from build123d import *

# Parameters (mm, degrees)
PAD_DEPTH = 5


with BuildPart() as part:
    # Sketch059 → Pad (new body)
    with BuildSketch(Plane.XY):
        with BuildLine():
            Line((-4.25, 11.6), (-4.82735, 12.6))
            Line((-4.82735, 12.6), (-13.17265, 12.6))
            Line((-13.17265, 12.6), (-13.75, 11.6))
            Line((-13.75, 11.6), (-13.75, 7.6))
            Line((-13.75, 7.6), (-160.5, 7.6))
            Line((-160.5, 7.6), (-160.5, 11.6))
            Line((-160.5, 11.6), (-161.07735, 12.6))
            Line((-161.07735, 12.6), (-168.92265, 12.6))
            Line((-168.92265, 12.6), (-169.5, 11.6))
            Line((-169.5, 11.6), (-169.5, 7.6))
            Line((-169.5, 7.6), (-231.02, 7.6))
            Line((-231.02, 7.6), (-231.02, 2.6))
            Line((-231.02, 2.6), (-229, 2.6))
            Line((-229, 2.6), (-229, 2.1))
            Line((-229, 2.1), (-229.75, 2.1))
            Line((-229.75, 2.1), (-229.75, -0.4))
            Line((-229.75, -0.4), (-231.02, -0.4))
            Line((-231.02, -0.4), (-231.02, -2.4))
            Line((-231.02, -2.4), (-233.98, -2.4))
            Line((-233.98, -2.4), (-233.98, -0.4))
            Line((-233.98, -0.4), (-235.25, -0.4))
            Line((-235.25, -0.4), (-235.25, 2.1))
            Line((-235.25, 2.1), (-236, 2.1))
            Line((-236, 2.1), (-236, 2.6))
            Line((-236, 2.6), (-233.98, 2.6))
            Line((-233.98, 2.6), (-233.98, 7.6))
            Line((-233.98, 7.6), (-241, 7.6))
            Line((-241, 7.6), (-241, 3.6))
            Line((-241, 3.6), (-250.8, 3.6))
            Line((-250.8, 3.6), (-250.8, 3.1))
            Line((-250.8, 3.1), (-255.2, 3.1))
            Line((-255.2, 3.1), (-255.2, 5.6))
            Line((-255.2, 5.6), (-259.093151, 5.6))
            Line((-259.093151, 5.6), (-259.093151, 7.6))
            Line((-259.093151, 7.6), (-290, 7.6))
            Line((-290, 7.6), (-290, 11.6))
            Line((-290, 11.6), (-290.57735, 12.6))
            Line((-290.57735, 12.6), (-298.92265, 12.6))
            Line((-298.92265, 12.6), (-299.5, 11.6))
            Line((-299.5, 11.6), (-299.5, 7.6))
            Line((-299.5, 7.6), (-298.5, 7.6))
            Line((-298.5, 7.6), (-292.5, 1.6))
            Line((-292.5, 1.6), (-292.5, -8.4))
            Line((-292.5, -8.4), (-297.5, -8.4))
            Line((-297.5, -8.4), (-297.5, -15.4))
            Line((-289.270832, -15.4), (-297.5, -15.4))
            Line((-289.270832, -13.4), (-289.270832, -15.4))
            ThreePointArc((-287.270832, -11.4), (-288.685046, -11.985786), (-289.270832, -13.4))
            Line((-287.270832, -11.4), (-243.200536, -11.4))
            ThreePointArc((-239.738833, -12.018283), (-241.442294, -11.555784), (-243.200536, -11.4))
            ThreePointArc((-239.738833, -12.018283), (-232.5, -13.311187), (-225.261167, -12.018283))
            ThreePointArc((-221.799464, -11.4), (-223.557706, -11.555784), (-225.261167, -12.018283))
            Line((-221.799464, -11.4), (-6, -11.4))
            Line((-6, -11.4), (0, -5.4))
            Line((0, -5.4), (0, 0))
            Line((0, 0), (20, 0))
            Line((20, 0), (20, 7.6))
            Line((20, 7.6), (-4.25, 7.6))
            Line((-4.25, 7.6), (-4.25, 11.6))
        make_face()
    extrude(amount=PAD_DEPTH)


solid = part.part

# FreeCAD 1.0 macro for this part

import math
import FreeCAD as App
import Part
import Sketcher
from FreeCAD import Vector
Q = App.Units.Quantity

doc = App.newDocument("Part")
body = doc.addObject("PartDesign::Body", "Body")

# Sketch on XY plane
sketch1 = body.newObject("Sketcher::SketchObject", "Sketch")
sketch1.AttachmentSupport = (doc.getObject("XY_Plane"), [""])
sketch1.MapMode = "FlatFace"
sketch1.addGeometry([
    Part.LineSegment(Vector(-4.2, 11.6, 0), Vector(-4.8, 12.6, 0)),  # 0
    Part.LineSegment(Vector(-4.8, 12.6, 0), Vector(-13.2, 12.6, 0)),  # 1
    Part.LineSegment(Vector(-13.2, 12.6, 0), Vector(-13.8, 11.6, 0)),  # 2
    Part.LineSegment(Vector(-13.8, 11.6, 0), Vector(-13.8, 7.6, 0)),  # 3
    Part.LineSegment(Vector(-13.8, 7.6, 0), Vector(-160.5, 7.6, 0)),  # 4
    Part.LineSegment(Vector(-160.5, 7.6, 0), Vector(-160.5, 11.6, 0)),  # 5
    Part.LineSegment(Vector(-160.5, 11.6, 0), Vector(-161.1, 12.6, 0)),  # 6
    Part.LineSegment(Vector(-161.1, 12.6, 0), Vector(-168.9, 12.6, 0)),  # 7
    Part.LineSegment(Vector(-168.9, 12.6, 0), Vector(-169.5, 11.6, 0)),  # 8
    Part.LineSegment(Vector(-169.5, 11.6, 0), Vector(-169.5, 7.6, 0)),  # 9
    Part.LineSegment(Vector(-169.5, 7.6, 0), Vector(-231, 7.6, 0)),  # 10
    Part.LineSegment(Vector(-231, 7.6, 0), Vector(-231, 2.6, 0)),  # 11
    Part.LineSegment(Vector(-231, 2.6, 0), Vector(-229, 2.6, 0)),  # 12
    Part.LineSegment(Vector(-229, 2.6, 0), Vector(-229, 2.1, 0)),  # 13
    Part.LineSegment(Vector(-229, 2.1, 0), Vector(-229.8, 2.1, 0)),  # 14
    Part.LineSegment(Vector(-229.8, 2.1, 0), Vector(-229.8, -0.4, 0)),  # 15
    Part.LineSegment(Vector(-229.8, -0.4, 0), Vector(-231, -0.4, 0)),  # 16
    Part.LineSegment(Vector(-231, -0.4, 0), Vector(-231, -2.4, 0)),  # 17
    Part.LineSegment(Vector(-231, -2.4, 0), Vector(-234, -2.4, 0)),  # 18
    Part.LineSegment(Vector(-234, -2.4, 0), Vector(-234, -0.4, 0)),  # 19
    Part.LineSegment(Vector(-234, -0.4, 0), Vector(-235.2, -0.4, 0)),  # 20
    Part.LineSegment(Vector(-235.2, -0.4, 0), Vector(-235.2, 2.1, 0)),  # 21
    Part.LineSegment(Vector(-235.2, 2.1, 0), Vector(-236, 2.1, 0)),  # 22
    Part.LineSegment(Vector(-236, 2.1, 0), Vector(-236, 2.6, 0)),  # 23
    Part.LineSegment(Vector(-236, 2.6, 0), Vector(-234, 2.6, 0)),  # 24
    Part.LineSegment(Vector(-234, 2.6, 0), Vector(-234, 7.6, 0)),  # 25
    Part.LineSegment(Vector(-234, 7.6, 0), Vector(-241, 7.6, 0)),  # 26
    Part.LineSegment(Vector(-241, 7.6, 0), Vector(-241, 3.6, 0)),  # 27
    Part.LineSegment(Vector(-241, 3.6, 0), Vector(-250.8, 3.6, 0)),  # 28
    Part.LineSegment(Vector(-250.8, 3.6, 0), Vector(-250.8, 3.1, 0)),  # 29
    Part.LineSegment(Vector(-250.8, 3.1, 0), Vector(-255.2, 3.1, 0)),  # 30
    Part.LineSegment(Vector(-255.2, 3.1, 0), Vector(-255.2, 5.6, 0)),  # 31
    Part.LineSegment(Vector(-255.2, 5.6, 0), Vector(-259.1, 5.6, 0)),  # 32
    Part.LineSegment(Vector(-259.1, 5.6, 0), Vector(-259.1, 7.6, 0)),  # 33
    Part.LineSegment(Vector(-259.1, 7.6, 0), Vector(-290, 7.6, 0)),  # 34
    Part.LineSegment(Vector(-290, 7.6, 0), Vector(-290, 11.6, 0)),  # 35
    Part.LineSegment(Vector(-290, 11.6, 0), Vector(-290.6, 12.6, 0)),  # 36
    Part.LineSegment(Vector(-290.6, 12.6, 0), Vector(-298.9, 12.6, 0)),  # 37
    Part.LineSegment(Vector(-298.9, 12.6, 0), Vector(-299.5, 11.6, 0)),  # 38
    Part.LineSegment(Vector(-299.5, 11.6, 0), Vector(-299.5, 7.6, 0)),  # 39
    Part.LineSegment(Vector(-299.5, 7.6, 0), Vector(-298.5, 7.6, 0)),  # 40
    Part.LineSegment(Vector(-298.5, 7.6, 0), Vector(-292.5, 1.6, 0)),  # 41
    Part.LineSegment(Vector(-292.5, 1.6, 0), Vector(-292.5, -8.4, 0)),  # 42
    Part.LineSegment(Vector(-292.5, -8.4, 0), Vector(-297.5, -8.4, 0)),  # 43
    Part.LineSegment(Vector(-297.5, -8.4, 0), Vector(-297.5, -15.4, 0)),  # 44
    Part.LineSegment(Vector(-297.5, -15.4, 0), Vector(-289.3, -15.4, 0)),  # 45
    Part.LineSegment(Vector(-289.3, -15.4, 0), Vector(-289.3, -13.4, 0)),  # 46
    Part.ArcOfCircle(Part.Circle(Vector(-287.3, -13.4, 0), Vector(0, 0, 1), 2), math.radians(90), math.radians(180)),  # 47
    Part.LineSegment(Vector(-287.3, -11.4, 0), Vector(-243.2, -11.4, 0)),  # 48
    Part.ArcOfCircle(Part.Circle(Vector(-243.2, -21.4, 0), Vector(0, 0, 1), 10), math.radians(70), math.radians(90)),  # 49
    Part.ArcOfCircle(Part.Circle(Vector(-232.5, 7.6, 0), Vector(0, 0, 1), 20.9), math.radians(-110), math.radians(-70)),  # 50
    Part.ArcOfCircle(Part.Circle(Vector(-221.8, -21.4, 0), Vector(0, 0, 1), 10), math.radians(90), math.radians(110)),  # 51
    Part.LineSegment(Vector(-221.8, -11.4, 0), Vector(-6, -11.4, 0)),  # 52
    Part.LineSegment(Vector(-6, -11.4, 0), Vector(0, -5.4, 0)),  # 53
    Part.LineSegment(Vector(0, -5.4, 0), Vector(0, 0, 0)),  # 54
    Part.LineSegment(Vector(0, 0, 0), Vector(20, 0, 0)),  # 55
    Part.LineSegment(Vector(20, 0, 0), Vector(20, 7.6, 0)),  # 56
    Part.LineSegment(Vector(20, 7.6, 0), Vector(-4.2, 7.6, 0)),  # 57
    Part.LineSegment(Vector(-4.2, 7.6, 0), Vector(-4.2, 11.6, 0)),  # 58
], False)
sketch1.addConstraint([
    Sketcher.Constraint("Coincident", 0, 2, 1, 1),
    Sketcher.Constraint("Coincident", 1, 2, 2, 1),
    Sketcher.Constraint("Coincident", 2, 2, 3, 1),
    Sketcher.Constraint("Coincident", 3, 2, 4, 1),
    Sketcher.Constraint("Coincident", 4, 2, 5, 1),
    Sketcher.Constraint("Coincident", 5, 2, 6, 1),
    Sketcher.Constraint("Coincident", 6, 2, 7, 1),
    Sketcher.Constraint("Coincident", 7, 2, 8, 1),
    Sketcher.Constraint("Coincident", 8, 2, 9, 1),
    Sketcher.Constraint("Coincident", 9, 2, 10, 1),
    Sketcher.Constraint("Coincident", 10, 2, 11, 1),
    Sketcher.Constraint("Coincident", 11, 2, 12, 1),
    Sketcher.Constraint("Coincident", 12, 2, 13, 1),
    Sketcher.Constraint("Coincident", 13, 2, 14, 1),
    Sketcher.Constraint("Coincident", 14, 2, 15, 1),
    Sketcher.Constraint("Coincident", 15, 2, 16, 1),
    Sketcher.Constraint("Coincident", 16, 2, 17, 1),
    Sketcher.Constraint("Coincident", 17, 2, 18, 1),
    Sketcher.Constraint("Coincident", 18, 2, 19, 1),
    Sketcher.Constraint("Coincident", 19, 2, 20, 1),
    Sketcher.Constraint("Coincident", 20, 2, 21, 1),
    Sketcher.Constraint("Coincident", 21, 2, 22, 1),
    Sketcher.Constraint("Coincident", 22, 2, 23, 1),
    Sketcher.Constraint("Coincident", 23, 2, 24, 1),
    Sketcher.Constraint("Coincident", 24, 2, 25, 1),
    Sketcher.Constraint("Coincident", 25, 2, 26, 1),
    Sketcher.Constraint("Coincident", 26, 2, 27, 1),
    Sketcher.Constraint("Coincident", 27, 2, 28, 1),
    Sketcher.Constraint("Coincident", 28, 2, 29, 1),
    Sketcher.Constraint("Coincident", 29, 2, 30, 1),
    Sketcher.Constraint("Coincident", 30, 2, 31, 1),
    Sketcher.Constraint("Coincident", 31, 2, 32, 1),
    Sketcher.Constraint("Coincident", 32, 2, 33, 1),
    Sketcher.Constraint("Coincident", 33, 2, 34, 1),
    Sketcher.Constraint("Coincident", 34, 2, 35, 1),
    Sketcher.Constraint("Coincident", 35, 2, 36, 1),
    Sketcher.Constraint("Coincident", 36, 2, 37, 1),
    Sketcher.Constraint("Coincident", 37, 2, 38, 1),
    Sketcher.Constraint("Coincident", 38, 2, 39, 1),
    Sketcher.Constraint("Coincident", 39, 2, 40, 1),
    Sketcher.Constraint("Coincident", 40, 2, 41, 1),
    Sketcher.Constraint("Coincident", 41, 2, 42, 1),
    Sketcher.Constraint("Coincident", 42, 2, 43, 1),
    Sketcher.Constraint("Coincident", 43, 2, 44, 1),
    Sketcher.Constraint("Coincident", 44, 2, 45, 1),
    Sketcher.Constraint("Coincident", 45, 2, 46, 1),
    Sketcher.Constraint("Tangent", 46, 2, 47, 2),
    Sketcher.Constraint("Tangent", 47, 1, 48, 1),
    Sketcher.Constraint("Tangent", 48, 2, 49, 2),
    Sketcher.Constraint("Tangent", 49, 1, 50, 1),
    Sketcher.Constraint("Tangent", 50, 2, 51, 2),
    Sketcher.Constraint("Tangent", 51, 1, 52, 1),
    Sketcher.Constraint("Coincident", 52, 2, 53, 1),
    Sketcher.Constraint("Coincident", 53, 2, 54, 1),
    Sketcher.Constraint("Coincident", 54, 2, 55, 1),
    Sketcher.Constraint("Coincident", 55, 2, 56, 1),
    Sketcher.Constraint("Coincident", 56, 2, 57, 1),
    Sketcher.Constraint("Coincident", 57, 2, 58, 1),
    Sketcher.Constraint("Coincident", 58, 2, 0, 1),
    Sketcher.Constraint("Horizontal", 1),
    Sketcher.Constraint("Vertical", 3),
    Sketcher.Constraint("Horizontal", 4),
    Sketcher.Constraint("Vertical", 5),
    Sketcher.Constraint("Horizontal", 7),
    Sketcher.Constraint("Vertical", 9),
    Sketcher.Constraint("Horizontal", 10),
    Sketcher.Constraint("Vertical", 11),
    Sketcher.Constraint("Horizontal", 12),
    Sketcher.Constraint("Vertical", 13),
    Sketcher.Constraint("Horizontal", 14),
    Sketcher.Constraint("Vertical", 15),
    Sketcher.Constraint("Horizontal", 16),
    Sketcher.Constraint("Vertical", 17),
    Sketcher.Constraint("Horizontal", 18),
    Sketcher.Constraint("Vertical", 19),
    Sketcher.Constraint("Horizontal", 20),
    Sketcher.Constraint("Vertical", 21),
    Sketcher.Constraint("Horizontal", 22),
    Sketcher.Constraint("Vertical", 23),
    Sketcher.Constraint("Horizontal", 24),
    Sketcher.Constraint("Vertical", 25),
    Sketcher.Constraint("Horizontal", 26),
    Sketcher.Constraint("Vertical", 27),
    Sketcher.Constraint("Horizontal", 28),
    Sketcher.Constraint("Vertical", 29),
    Sketcher.Constraint("Horizontal", 30),
    Sketcher.Constraint("Vertical", 31),
    Sketcher.Constraint("Horizontal", 32),
    Sketcher.Constraint("Vertical", 33),
    Sketcher.Constraint("Horizontal", 34),
    Sketcher.Constraint("Vertical", 35),
    Sketcher.Constraint("Horizontal", 37),
    Sketcher.Constraint("Vertical", 39),
    Sketcher.Constraint("Horizontal", 40),
    Sketcher.Constraint("Vertical", 42),
    Sketcher.Constraint("Horizontal", 43),
    Sketcher.Constraint("Vertical", 44),
    Sketcher.Constraint("Horizontal", 45),
    Sketcher.Constraint("Vertical", 46),
    Sketcher.Constraint("Horizontal", 48),
    Sketcher.Constraint("Horizontal", 52),
    Sketcher.Constraint("Vertical", 54),
    Sketcher.Constraint("Horizontal", 55),
    Sketcher.Constraint("Vertical", 56),
    Sketcher.Constraint("Horizontal", 57),
    Sketcher.Constraint("Vertical", 58),
    Sketcher.Constraint("Coincident", 54, 2, -1, 1),
    Sketcher.Constraint("Equal", 49, 51),
    Sketcher.Constraint("Parallel", 0, 6),
    Sketcher.Constraint("Parallel", 2, 8),
    Sketcher.Constraint("Parallel", 6, 36),
    Sketcher.Constraint("Parallel", 8, 38),
    Sketcher.Constraint("Perpendicular", 41, 53),
    Sketcher.Constraint("Horizontal", 49, 3, 51, 3),
    Sketcher.Constraint("Horizontal", 2, 2, 5, 2),
    Sketcher.Constraint("Horizontal", 1, 2, 6, 2),
    Sketcher.Constraint("Horizontal", 5, 2, 8, 2),
    Sketcher.Constraint("Horizontal", 4, 2, 9, 2),
    Sketcher.Constraint("Horizontal", 16, 2, 19, 2),
    Sketcher.Constraint("Horizontal", 14, 2, 21, 2),
    Sketcher.Constraint("Horizontal", 12, 2, 23, 2),
    Sketcher.Constraint("Horizontal", 10, 2, 25, 2),
    Sketcher.Constraint("Horizontal", 26, 2, 33, 2),
    Sketcher.Constraint("Horizontal", 8, 2, 35, 2),
    Sketcher.Constraint("Horizontal", 7, 2, 36, 2),
    Sketcher.Constraint("Horizontal", 35, 2, 38, 2),
    Sketcher.Constraint("Horizontal", 34, 2, 39, 2),
    Sketcher.Constraint("Horizontal", 40, 2, 56, 2),
    Sketcher.Constraint("Horizontal", 38, 2, 58, 2),
    Sketcher.Constraint("Vertical", 11, 2, 16, 2),
    Sketcher.Constraint("Vertical", 19, 2, 24, 2),
    Sketcher.Constraint("Equal", 16, 20),
    Sketcher.Constraint("Equal", 14, 22),
    Sketcher.Constraint("Equal", 1, 37),
    Sketcher.Constraint("Equal", 43, 11),
    Sketcher.Constraint("Equal", 9, 27),
    Sketcher.Constraint("Equal", 23, 29),
    Sketcher.Constraint("Equal", 21, 31),
    Sketcher.Constraint("Equal", 19, 33),
    Sketcher.Constraint("Equal", 33, 46),
    Sketcher.Constraint("Equal", 0, 2),
    Sketcher.Constraint("Equal", 41, 53),
    Sketcher.Constraint("Radius", 47, 1.999999),
    Sketcher.Constraint("DistanceX", 40, 1, 40, 2, 1.0),
    Sketcher.Constraint("DistanceX", 43, 2, 43, 1, 5.0),
    Sketcher.Constraint("DistanceX", 55, 1, 55, 2, 20.0),
    Sketcher.Constraint("DistanceY", 3, 2, 3, 1, 4.0),
    Sketcher.Constraint("DistanceY", 17, 2, 17, 1, 2.0),
    Sketcher.Constraint("DistanceY", 42, 2, 42, 1, 10.0),
    Sketcher.Constraint("DistanceY", 44, 2, 44, 1, 7.0),
    Sketcher.Constraint("Angle", 0, Q("119.999988 deg")),
    Sketcher.Constraint("Angle", 41, Q("-45 deg")),
    Sketcher.Constraint("DistanceX", 28, 2, 28, 1, 9.8),
    Sketcher.Constraint("DistanceX", 30, 2, 30, 1, 4.4),
    Sketcher.Constraint("DistanceY", 13, 2, 13, 1, 0.5),
    Sketcher.Constraint("DistanceY", 54, 1, 54, 2, 5.4),
    Sketcher.Constraint("DistanceX", 12, 2, -1, 1, 229.0),
    Sketcher.Constraint("DistanceX", 22, 2, -1, 1, 236.0),
    Sketcher.Constraint("DistanceX", 26, 2, -1, 1, 241.0),
    Sketcher.Constraint("DistanceX", 34, 2, -1, 1, 290.0),
    Sketcher.Constraint("DistanceX", 52, 2, -1, 1, 6.0),
    Sketcher.Constraint("DistanceX", 4, 2, 4, 1, 146.75),
    Sketcher.Constraint("DistanceX", 10, 2, 10, 1, 61.52),
    Sketcher.Constraint("DistanceX", 12, 1, 12, 2, 2.02),
    Sketcher.Constraint("DistanceX", 14, 2, 14, 1, 0.75),
    Sketcher.Constraint("DistanceX", 57, 2, 57, 1, 24.25),
    Sketcher.Constraint("DistanceX", 50, 3, -1, 1, 232.5),
    Sketcher.Constraint("DistanceY", -1, 1, 0, 2, 12.6),
    Sketcher.Constraint("DistanceX", 4, 2, -1, 1, 160.5),
    Sketcher.Constraint("Radius", 49, 9.999991),
    Sketcher.Constraint("Radius", 50, 20.911183),
    Sketcher.Constraint("DistanceX", 32, 2, 32, 1, 3.893151),
    Sketcher.Constraint("DistanceX", 45, 1, 45, 2, 8.229168),
    Sketcher.Constraint("DistanceX", 48, 1, 48, 2, 44.070296),
])
pad1 = body.newObject("PartDesign::Pad", "Pad")
pad1.Profile = sketch1
pad1.Length = 5

doc.recompute()
